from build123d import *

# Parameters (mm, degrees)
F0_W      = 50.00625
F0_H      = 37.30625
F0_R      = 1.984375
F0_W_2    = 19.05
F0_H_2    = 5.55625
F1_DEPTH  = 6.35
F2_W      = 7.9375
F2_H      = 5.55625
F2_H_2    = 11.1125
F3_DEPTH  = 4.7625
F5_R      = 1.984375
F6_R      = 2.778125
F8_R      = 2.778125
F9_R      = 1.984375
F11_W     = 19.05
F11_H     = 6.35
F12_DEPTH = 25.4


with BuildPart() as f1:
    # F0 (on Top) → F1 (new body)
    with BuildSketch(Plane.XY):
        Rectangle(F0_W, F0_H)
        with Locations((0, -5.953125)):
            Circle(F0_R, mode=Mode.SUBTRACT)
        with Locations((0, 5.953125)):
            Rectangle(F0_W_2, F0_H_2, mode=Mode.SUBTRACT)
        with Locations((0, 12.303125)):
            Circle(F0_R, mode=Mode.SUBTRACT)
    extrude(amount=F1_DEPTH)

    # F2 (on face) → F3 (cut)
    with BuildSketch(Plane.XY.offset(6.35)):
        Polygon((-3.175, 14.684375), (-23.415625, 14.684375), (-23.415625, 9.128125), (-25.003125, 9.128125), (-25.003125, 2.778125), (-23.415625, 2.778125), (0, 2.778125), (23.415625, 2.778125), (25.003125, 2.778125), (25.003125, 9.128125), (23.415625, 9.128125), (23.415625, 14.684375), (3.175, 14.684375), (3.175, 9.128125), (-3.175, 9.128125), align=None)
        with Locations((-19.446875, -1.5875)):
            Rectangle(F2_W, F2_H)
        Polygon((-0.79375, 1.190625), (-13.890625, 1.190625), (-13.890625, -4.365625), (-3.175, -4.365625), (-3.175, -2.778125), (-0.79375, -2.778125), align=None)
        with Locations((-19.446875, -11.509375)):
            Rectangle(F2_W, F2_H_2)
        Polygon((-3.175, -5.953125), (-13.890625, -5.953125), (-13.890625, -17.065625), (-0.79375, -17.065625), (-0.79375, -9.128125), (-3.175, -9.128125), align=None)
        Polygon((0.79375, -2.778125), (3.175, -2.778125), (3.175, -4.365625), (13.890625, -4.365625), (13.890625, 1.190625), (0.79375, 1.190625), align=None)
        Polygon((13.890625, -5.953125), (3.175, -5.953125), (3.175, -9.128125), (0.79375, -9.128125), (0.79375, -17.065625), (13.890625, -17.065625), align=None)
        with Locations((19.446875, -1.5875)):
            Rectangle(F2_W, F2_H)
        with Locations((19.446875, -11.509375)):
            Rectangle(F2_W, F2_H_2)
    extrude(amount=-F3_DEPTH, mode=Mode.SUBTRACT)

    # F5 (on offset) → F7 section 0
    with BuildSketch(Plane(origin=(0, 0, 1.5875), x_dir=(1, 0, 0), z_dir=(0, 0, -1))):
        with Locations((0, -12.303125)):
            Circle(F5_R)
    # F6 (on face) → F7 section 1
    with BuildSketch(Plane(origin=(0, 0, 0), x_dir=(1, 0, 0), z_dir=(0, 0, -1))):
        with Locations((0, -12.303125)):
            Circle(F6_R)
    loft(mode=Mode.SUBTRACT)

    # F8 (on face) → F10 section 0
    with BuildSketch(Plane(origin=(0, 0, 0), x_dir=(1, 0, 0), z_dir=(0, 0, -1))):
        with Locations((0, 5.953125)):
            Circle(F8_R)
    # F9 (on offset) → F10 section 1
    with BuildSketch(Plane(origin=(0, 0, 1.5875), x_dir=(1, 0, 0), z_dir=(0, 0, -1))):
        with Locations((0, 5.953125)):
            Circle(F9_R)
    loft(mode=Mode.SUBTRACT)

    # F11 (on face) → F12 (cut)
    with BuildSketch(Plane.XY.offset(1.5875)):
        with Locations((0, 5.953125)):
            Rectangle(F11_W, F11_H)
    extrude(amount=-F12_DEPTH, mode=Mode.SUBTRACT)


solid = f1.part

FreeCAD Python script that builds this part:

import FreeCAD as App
import Part
import Sketcher

V = App.Vector
Q = App.Units.Quantity


def add_polygon(sketch, points):
    """Adds a closed chain of lines whose ends are joined by coincident constraints."""
    first, n = sketch.GeometryCount, len(points)
    for a, b in zip(points, points[1:] + points[:1]):
        sketch.addGeometry(Part.LineSegment(App.Vector(*a, 0), App.Vector(*b, 0)), False)
    for i in range(n):
        sketch.addConstraint(Sketcher.Constraint("Coincident", first + i, 2, first + (i + 1) % n, 1))

doc = App.newDocument("Part")
body = doc.addObject("PartDesign::Body", "Body")

sketch1 = body.newObject("Sketcher::SketchObject", "Sketch")
sketch1.AttachmentSupport = (doc.getObject("XY_Plane"), [""])
sketch1.MapMode = "FlatFace"
add_polygon(sketch1, [(-25, 18.7), (-25, -18.7), (25, -18.7), (25, 18.7)])
sketch1.addGeometry(Part.Circle(V(0, -6, 0), V(0, 0, 1), 2), False)
add_polygon(sketch1, [(9.5, 3.2), (-9.5, 3.2), (-9.5, 8.7), (9.5, 8.7)])
sketch1.addGeometry(Part.Circle(V(0, 12.3, 0), V(0, 0, 1), 2), False)
sketch1.addConstraint([
    Sketcher.Constraint("Vertical", 0),
    Sketcher.Constraint("Horizontal", 1),
    Sketcher.Constraint("Vertical", 2),
    Sketcher.Constraint("Horizontal", 3),
    Sketcher.Constraint("Horizontal", 5),
    Sketcher.Constraint("Vertical", 6),
    Sketcher.Constraint("Horizontal", 7),
    Sketcher.Constraint("Vertical", 8),
    Sketcher.Constraint("Equal", 4, 9),
    Sketcher.Constraint("Symmetric", 0, 2, 2, 2, -1, 1),
    Sketcher.Constraint("PointOnObject", 4, 3, -2),
    Sketcher.Constraint("PointOnObject", 9, 3, -2),
    Sketcher.Constraint("Diameter", 4, Q("0.15625 in")),
    Sketcher.Constraint("DistanceX", 5, 2, 5, 1, Q("0.75 in")),
    Sketcher.Constraint("DistanceY", 0, 2, 4, 3, Q("0.5 in")),
    Sketcher.Constraint("DistanceX", 1, 1, 1, 2, Q("1.96875 in")),
    Sketcher.Constraint("DistanceY", 0, 2, 0, 1, Q("1.46875 in")),
    Sketcher.Constraint("DistanceY", 6, 1, 6, 2, Q("0.21875 in")),
    Sketcher.Constraint("DistanceY", 9, 3, 2, 2, Q("0.25 in")),
    Sketcher.Constraint("DistanceX", 5, 2, -1, 1, Q("0.375 in")),
    Sketcher.Constraint("DistanceY", -1, 1, 5, 2, Q("0.125 in")),
])
pad1 = body.newObject("PartDesign::Pad", "Pad")
pad1.Profile = sketch1
pad1.Length = Q("0.25 in")

sketch2 = body.newObject("Sketcher::SketchObject", "Sketch001")
sketch2.AttachmentSupport = (doc.getObject("XY_Plane"), [""])
sketch2.MapMode = "FlatFace"
sketch2.AttachmentOffset = App.Placement(V(0, 0, 0.25 * 25.4), App.Rotation())
add_polygon(sketch2, [(-3.2, 14.7), (-23.4, 14.7), (-23.4, 9.1), (-25, 9.1), (-25, 2.8), (25, 2.8), (25, 9.1), (23.4, 9.1), (23.4, 14.7), (3.2, 14.7), (3.2, 9.1), (-3.2, 9.1)])
add_polygon(sketch2, [(-23.4, 1.2), (-23.4, -4.4), (-15.5, -4.4), (-15.5, 1.2)])
add_polygon(sketch2, [(-0.8, 1.2), (-13.9, 1.2), (-13.9, -4.4), (-3.2, -4.4), (-3.2, -2.8), (-0.8, -2.8)])
add_polygon(sketch2, [(-23.4, -6), (-23.4, -17.1), (-15.5, -17.1), (-15.5, -6)])
add_polygon(sketch2, [(-3.2, -6), (-13.9, -6), (-13.9, -17.1), (-0.8, -17.1), (-0.8, -9.1), (-3.2, -9.1)])
add_polygon(sketch2, [(0.8, -2.8), (3.2, -2.8), (3.2, -4.4), (13.9, -4.4), (13.9, 1.2), (0.8, 1.2)])
add_polygon(sketch2, [(13.9, -6), (3.2, -6), (3.2, -9.1), (0.8, -9.1), (0.8, -17.1), (13.9, -17.1)])
add_polygon(sketch2, [(15.5, 1.2), (15.5, -4.4), (23.4, -4.4), (23.4, 1.2)])
add_polygon(sketch2, [(15.5, -6), (15.5, -17.1), (23.4, -17.1), (23.4, -6)])
sketch2.addConstraint([
    Sketcher.Constraint("Horizontal", 0),
    Sketcher.Constraint("Vertical", 1),
    Sketcher.Constraint("Horizontal", 2),
    Sketcher.Constraint("Vertical", 3),
    Sketcher.Constraint("Horizontal", 4),
    Sketcher.Constraint("Vertical", 5),
    Sketcher.Constraint("Horizontal", 6),
    Sketcher.Constraint("Vertical", 7),
    Sketcher.Constraint("Horizontal", 8),
    Sketcher.Constraint("Vertical", 9),
    Sketcher.Constraint("Horizontal", 10),
    Sketcher.Constraint("Vertical", 11),
    Sketcher.Constraint("Vertical", 12),
    Sketcher.Constraint("Horizontal", 13),
    Sketcher.Constraint("Vertical", 14),
    Sketcher.Constraint("Horizontal", 15),
    Sketcher.Constraint("Horizontal", 16),
    Sketcher.Constraint("Vertical", 17),
    Sketcher.Constraint("Horizontal", 18),
    Sketcher.Constraint("Vertical", 19),
    Sketcher.Constraint("Horizontal", 20),
    Sketcher.Constraint("Vertical", 21),
    Sketcher.Constraint("Vertical", 22),
    Sketcher.Constraint("Horizontal", 23),
    Sketcher.Constraint("Vertical", 24),
    Sketcher.Constraint("Horizontal", 25),
    Sketcher.Constraint("Horizontal", 26),
    Sketcher.Constraint("Vertical", 27),
    Sketcher.Constraint("Horizontal", 28),
    Sketcher.Constraint("Vertical", 29),
    Sketcher.Constraint("Horizontal", 30),
    Sketcher.Constraint("Vertical", 31),
    Sketcher.Constraint("Horizontal", 32),
    Sketcher.Constraint("Vertical", 33),
    Sketcher.Constraint("Horizontal", 34),
    Sketcher.Constraint("Vertical", 35),
    Sketcher.Constraint("Horizontal", 36),
    Sketcher.Constraint("Vertical", 37),
    Sketcher.Constraint("Horizontal", 38),
    Sketcher.Constraint("Vertical", 39),
    Sketcher.Constraint("Horizontal", 40),
    Sketcher.Constraint("Vertical", 41),
    Sketcher.Constraint("Horizontal", 42),
    Sketcher.Constraint("Vertical", 43),
    Sketcher.Constraint("Vertical", 44),
    Sketcher.Constraint("Horizontal", 45),
    Sketcher.Constraint("Vertical", 46),
    Sketcher.Constraint("Horizontal", 47),
    Sketcher.Constraint("Vertical", 48),
    Sketcher.Constraint("Horizontal", 49),
    Sketcher.Constraint("Vertical", 50),
    Sketcher.Constraint("Horizontal", 51),
    Sketcher.Constraint("Symmetric", 9, 2, 30, 2, -1, 1),
    Sketcher.Constraint("Symmetric", 10, 2, 39, 2, -1, 1),
    Sketcher.Constraint("Symmetric", 2, 2, 5, 2, -2),
    Sketcher.Constraint("Symmetric", 0, 2, 7, 2, -2),
    Sketcher.Constraint("Symmetric", 19, 2, 32, 2, -2),
    Sketcher.Constraint("Symmetric", 17, 2, 34, 2, -2),
    Sketcher.Constraint("Symmetric", 21, 2, 36, 2, -2),
    Sketcher.Constraint("Symmetric", 31, 2, 38, 2, -2),
    Sketcher.Constraint("Symmetric", 28, 2, 41, 2, -2),
    Sketcher.Constraint("Symmetric", 13, 2, 44, 2, -2),
    Sketcher.Constraint("Symmetric", 15, 2, 46, 2, -2),
    Sketcher.Constraint("Symmetric", 23, 2, 48, 2, -2),
    Sketcher.Constraint("Symmetric", 25, 2, 50, 2, -2),
    Sketcher.Constraint("Horizontal", 6, 2, 9, 2),
    Sketcher.Constraint("Horizontal", 15, 2, 16, 2),
    Sketcher.Constraint("Horizontal", 13, 2, 17, 2),
    Sketcher.Constraint("Horizontal", 25, 2, 26, 2),
    Sketcher.Constraint("Horizontal", 23, 2, 27, 2),
    Sketcher.Constraint("Vertical", 1, 2, 12, 2),
    Sketcher.Constraint("Vertical", 11, 2, 18, 2),
    Sketcher.Constraint("Vertical", 15, 2, 22, 2),
    Sketcher.Constraint("Vertical", 14, 2, 23, 2),
    Sketcher.Constraint("Vertical", 17, 2, 26, 2),
    Sketcher.Constraint("Vertical", 21, 2, 28, 2),
    Sketcher.Constraint("Vertical", 35, 2, 42, 2),
    Sketcher.Constraint("Equal", 10, 3),
    Sketcher.Constraint("Equal", 11, 12),
    Sketcher.Constraint("Equal", 6, 19),
    Sketcher.Constraint("Equal", 51, 29),
    Sketcher.Constraint("DistanceX", 10, 2, 10, 1, Q("0.25 in")),
    Sketcher.Constraint("DistanceY", 22, 2, 12, 2, Q("0.5 in")),
    Sketcher.Constraint("DistanceX", 0, 2, 0, 1, Q("0.796875 in")),
    Sketcher.Constraint("DistanceX", 2, 2, 2, 1, Q("0.0625 in")),
    Sketcher.Constraint("DistanceX", 13, 1, 13, 2, Q("0.3125 in")),
    Sketcher.Constraint("DistanceX", 16, 2, 16, 1, Q("0.515625 in")),
    Sketcher.Constraint("DistanceX", 18, 1, 18, 2, Q("0.421875 in")),
    Sketcher.Constraint("DistanceY", 1, 2, 1, 1, Q("0.21875 in")),
    Sketcher.Constraint("DistanceY", 22, 2, 22, 1, Q("0.4375 in")),
    Sketcher.Constraint("DistanceY", 12, 2, 0, 2, Q("0.75 in")),
])
pocket1 = body.newObject("PartDesign::Pocket", "Pocket")
pocket1.Profile = sketch2
pocket1.Length = Q("0.1875 in")

sketch3 = body.newObject("Sketcher::SketchObject", "Sketch002")
sketch3.AttachmentSupport = (doc.getObject("XY_Plane"), [""])
sketch3.MapMode = "FlatFace"
sketch3.AttachmentOffset = App.Placement(V(0, 0, 0.0625 * 25.4), App.Rotation())
sketch3.addGeometry(Part.Circle(V(0, 12.3, 0), V(0, 0, 1), 2), False)
sketch3.addConstraint([
    Sketcher.Constraint("PointOnObject", 0, 3, -2),
    Sketcher.Constraint("Diameter", 0, Q("0.15625 in")),
    Sketcher.Constraint("DistanceY", -1, 1, 0, 3, Q("0.484375 in")),
])

sketch4 = body.newObject("Sketcher::SketchObject", "Sketch003")
sketch4.AttachmentSupport = (doc.getObject("XY_Plane"), [""])
sketch4.MapMode = "FlatFace"
sketch4.addGeometry(Part.Circle(V(0, 12.3, 0), V(0, 0, 1), 2.8), False)
sketch4.addConstraint([
    Sketcher.Constraint("PointOnObject", 0, 3, -2),
    Sketcher.Constraint("Diameter", 0, Q("0.21875 in")),
    Sketcher.Constraint("DistanceY", -1, 1, 0, 3, Q("0.484375 in")),
])

subtractiveloft = body.newObject("PartDesign::SubtractiveLoft", "SubtractiveLoft")
subtractiveloft.Profile = sketch3
subtractiveloft.Sections = [sketch4]

sketch5 = body.newObject("Sketcher::SketchObject", "Sketch004")
sketch5.AttachmentSupport = (doc.getObject("XY_Plane"), [""])
sketch5.MapMode = "FlatFace"
sketch5.addGeometry(Part.Circle(V(0, -6, 0), V(0, 0, 1), 2.8), False)
sketch5.addConstraint([
    Sketcher.Constraint("PointOnObject", 0, 3, -2),
    Sketcher.Constraint("Diameter", 0, Q("0.21875 in")),
    Sketcher.Constraint("DistanceY", 0, 3, -1, 1, Q("0.234375 in")),
])

sketch6 = body.newObject("Sketcher::SketchObject", "Sketch005")
sketch6.AttachmentSupport = (doc.getObject("XY_Plane"), [""])
sketch6.MapMode = "FlatFace"
sketch6.AttachmentOffset = App.Placement(V(0, 0, 0.0625 * 25.4), App.Rotation())
sketch6.addGeometry(Part.Circle(V(0, -6, 0), V(0, 0, 1), 2), False)
sketch6.addConstraint([
    Sketcher.Constraint("PointOnObject", 0, 3, -2),
    Sketcher.Constraint("Diameter", 0, Q("0.15625 in")),
    Sketcher.Constraint("DistanceY", 0, 3, -1, 1, Q("0.234375 in")),
])

subtractiveloft2 = body.newObject("PartDesign::SubtractiveLoft", "SubtractiveLoft001")
subtractiveloft2.Profile = sketch5
subtractiveloft2.Sections = [sketch6]

sketch7 = body.newObject("Sketcher::SketchObject", "Sketch006")
sketch7.AttachmentSupport = (doc.getObject("XY_Plane"), [""])
sketch7.MapMode = "FlatFace"
sketch7.AttachmentOffset = App.Placement(V(0, 0, 0.0625 * 25.4), App.Rotation())
add_polygon(sketch7, [(-10, 9), (-10, 3), (10, 3), (10, 9)])
sketch7.addConstraint([
    Sketcher.Constraint("Vertical", 0),
    Sketcher.Constraint("Horizontal", 1),
    Sketcher.Constraint("Vertical", 2),
    Sketcher.Constraint("Horizontal", 3),
    Sketcher.Constraint("DistanceX", 1, 1, 1, 2, Q("0.75 in")),
    Sketcher.Constraint("DistanceY", 0, 2, 0, 1, Q("0.25 in")),
    Sketcher.Constraint("DistanceX", 0, 2, -1, 1, Q("0.375 in")),
    Sketcher.Constraint("DistanceY", -1, 1, 0, 2, Q("0.109375 in")),
])
pocket2 = body.newObject("PartDesign::Pocket", "Pocket001")
pocket2.Profile = sketch7
pocket2.Length = Q("1 in")

doc.recompute()
